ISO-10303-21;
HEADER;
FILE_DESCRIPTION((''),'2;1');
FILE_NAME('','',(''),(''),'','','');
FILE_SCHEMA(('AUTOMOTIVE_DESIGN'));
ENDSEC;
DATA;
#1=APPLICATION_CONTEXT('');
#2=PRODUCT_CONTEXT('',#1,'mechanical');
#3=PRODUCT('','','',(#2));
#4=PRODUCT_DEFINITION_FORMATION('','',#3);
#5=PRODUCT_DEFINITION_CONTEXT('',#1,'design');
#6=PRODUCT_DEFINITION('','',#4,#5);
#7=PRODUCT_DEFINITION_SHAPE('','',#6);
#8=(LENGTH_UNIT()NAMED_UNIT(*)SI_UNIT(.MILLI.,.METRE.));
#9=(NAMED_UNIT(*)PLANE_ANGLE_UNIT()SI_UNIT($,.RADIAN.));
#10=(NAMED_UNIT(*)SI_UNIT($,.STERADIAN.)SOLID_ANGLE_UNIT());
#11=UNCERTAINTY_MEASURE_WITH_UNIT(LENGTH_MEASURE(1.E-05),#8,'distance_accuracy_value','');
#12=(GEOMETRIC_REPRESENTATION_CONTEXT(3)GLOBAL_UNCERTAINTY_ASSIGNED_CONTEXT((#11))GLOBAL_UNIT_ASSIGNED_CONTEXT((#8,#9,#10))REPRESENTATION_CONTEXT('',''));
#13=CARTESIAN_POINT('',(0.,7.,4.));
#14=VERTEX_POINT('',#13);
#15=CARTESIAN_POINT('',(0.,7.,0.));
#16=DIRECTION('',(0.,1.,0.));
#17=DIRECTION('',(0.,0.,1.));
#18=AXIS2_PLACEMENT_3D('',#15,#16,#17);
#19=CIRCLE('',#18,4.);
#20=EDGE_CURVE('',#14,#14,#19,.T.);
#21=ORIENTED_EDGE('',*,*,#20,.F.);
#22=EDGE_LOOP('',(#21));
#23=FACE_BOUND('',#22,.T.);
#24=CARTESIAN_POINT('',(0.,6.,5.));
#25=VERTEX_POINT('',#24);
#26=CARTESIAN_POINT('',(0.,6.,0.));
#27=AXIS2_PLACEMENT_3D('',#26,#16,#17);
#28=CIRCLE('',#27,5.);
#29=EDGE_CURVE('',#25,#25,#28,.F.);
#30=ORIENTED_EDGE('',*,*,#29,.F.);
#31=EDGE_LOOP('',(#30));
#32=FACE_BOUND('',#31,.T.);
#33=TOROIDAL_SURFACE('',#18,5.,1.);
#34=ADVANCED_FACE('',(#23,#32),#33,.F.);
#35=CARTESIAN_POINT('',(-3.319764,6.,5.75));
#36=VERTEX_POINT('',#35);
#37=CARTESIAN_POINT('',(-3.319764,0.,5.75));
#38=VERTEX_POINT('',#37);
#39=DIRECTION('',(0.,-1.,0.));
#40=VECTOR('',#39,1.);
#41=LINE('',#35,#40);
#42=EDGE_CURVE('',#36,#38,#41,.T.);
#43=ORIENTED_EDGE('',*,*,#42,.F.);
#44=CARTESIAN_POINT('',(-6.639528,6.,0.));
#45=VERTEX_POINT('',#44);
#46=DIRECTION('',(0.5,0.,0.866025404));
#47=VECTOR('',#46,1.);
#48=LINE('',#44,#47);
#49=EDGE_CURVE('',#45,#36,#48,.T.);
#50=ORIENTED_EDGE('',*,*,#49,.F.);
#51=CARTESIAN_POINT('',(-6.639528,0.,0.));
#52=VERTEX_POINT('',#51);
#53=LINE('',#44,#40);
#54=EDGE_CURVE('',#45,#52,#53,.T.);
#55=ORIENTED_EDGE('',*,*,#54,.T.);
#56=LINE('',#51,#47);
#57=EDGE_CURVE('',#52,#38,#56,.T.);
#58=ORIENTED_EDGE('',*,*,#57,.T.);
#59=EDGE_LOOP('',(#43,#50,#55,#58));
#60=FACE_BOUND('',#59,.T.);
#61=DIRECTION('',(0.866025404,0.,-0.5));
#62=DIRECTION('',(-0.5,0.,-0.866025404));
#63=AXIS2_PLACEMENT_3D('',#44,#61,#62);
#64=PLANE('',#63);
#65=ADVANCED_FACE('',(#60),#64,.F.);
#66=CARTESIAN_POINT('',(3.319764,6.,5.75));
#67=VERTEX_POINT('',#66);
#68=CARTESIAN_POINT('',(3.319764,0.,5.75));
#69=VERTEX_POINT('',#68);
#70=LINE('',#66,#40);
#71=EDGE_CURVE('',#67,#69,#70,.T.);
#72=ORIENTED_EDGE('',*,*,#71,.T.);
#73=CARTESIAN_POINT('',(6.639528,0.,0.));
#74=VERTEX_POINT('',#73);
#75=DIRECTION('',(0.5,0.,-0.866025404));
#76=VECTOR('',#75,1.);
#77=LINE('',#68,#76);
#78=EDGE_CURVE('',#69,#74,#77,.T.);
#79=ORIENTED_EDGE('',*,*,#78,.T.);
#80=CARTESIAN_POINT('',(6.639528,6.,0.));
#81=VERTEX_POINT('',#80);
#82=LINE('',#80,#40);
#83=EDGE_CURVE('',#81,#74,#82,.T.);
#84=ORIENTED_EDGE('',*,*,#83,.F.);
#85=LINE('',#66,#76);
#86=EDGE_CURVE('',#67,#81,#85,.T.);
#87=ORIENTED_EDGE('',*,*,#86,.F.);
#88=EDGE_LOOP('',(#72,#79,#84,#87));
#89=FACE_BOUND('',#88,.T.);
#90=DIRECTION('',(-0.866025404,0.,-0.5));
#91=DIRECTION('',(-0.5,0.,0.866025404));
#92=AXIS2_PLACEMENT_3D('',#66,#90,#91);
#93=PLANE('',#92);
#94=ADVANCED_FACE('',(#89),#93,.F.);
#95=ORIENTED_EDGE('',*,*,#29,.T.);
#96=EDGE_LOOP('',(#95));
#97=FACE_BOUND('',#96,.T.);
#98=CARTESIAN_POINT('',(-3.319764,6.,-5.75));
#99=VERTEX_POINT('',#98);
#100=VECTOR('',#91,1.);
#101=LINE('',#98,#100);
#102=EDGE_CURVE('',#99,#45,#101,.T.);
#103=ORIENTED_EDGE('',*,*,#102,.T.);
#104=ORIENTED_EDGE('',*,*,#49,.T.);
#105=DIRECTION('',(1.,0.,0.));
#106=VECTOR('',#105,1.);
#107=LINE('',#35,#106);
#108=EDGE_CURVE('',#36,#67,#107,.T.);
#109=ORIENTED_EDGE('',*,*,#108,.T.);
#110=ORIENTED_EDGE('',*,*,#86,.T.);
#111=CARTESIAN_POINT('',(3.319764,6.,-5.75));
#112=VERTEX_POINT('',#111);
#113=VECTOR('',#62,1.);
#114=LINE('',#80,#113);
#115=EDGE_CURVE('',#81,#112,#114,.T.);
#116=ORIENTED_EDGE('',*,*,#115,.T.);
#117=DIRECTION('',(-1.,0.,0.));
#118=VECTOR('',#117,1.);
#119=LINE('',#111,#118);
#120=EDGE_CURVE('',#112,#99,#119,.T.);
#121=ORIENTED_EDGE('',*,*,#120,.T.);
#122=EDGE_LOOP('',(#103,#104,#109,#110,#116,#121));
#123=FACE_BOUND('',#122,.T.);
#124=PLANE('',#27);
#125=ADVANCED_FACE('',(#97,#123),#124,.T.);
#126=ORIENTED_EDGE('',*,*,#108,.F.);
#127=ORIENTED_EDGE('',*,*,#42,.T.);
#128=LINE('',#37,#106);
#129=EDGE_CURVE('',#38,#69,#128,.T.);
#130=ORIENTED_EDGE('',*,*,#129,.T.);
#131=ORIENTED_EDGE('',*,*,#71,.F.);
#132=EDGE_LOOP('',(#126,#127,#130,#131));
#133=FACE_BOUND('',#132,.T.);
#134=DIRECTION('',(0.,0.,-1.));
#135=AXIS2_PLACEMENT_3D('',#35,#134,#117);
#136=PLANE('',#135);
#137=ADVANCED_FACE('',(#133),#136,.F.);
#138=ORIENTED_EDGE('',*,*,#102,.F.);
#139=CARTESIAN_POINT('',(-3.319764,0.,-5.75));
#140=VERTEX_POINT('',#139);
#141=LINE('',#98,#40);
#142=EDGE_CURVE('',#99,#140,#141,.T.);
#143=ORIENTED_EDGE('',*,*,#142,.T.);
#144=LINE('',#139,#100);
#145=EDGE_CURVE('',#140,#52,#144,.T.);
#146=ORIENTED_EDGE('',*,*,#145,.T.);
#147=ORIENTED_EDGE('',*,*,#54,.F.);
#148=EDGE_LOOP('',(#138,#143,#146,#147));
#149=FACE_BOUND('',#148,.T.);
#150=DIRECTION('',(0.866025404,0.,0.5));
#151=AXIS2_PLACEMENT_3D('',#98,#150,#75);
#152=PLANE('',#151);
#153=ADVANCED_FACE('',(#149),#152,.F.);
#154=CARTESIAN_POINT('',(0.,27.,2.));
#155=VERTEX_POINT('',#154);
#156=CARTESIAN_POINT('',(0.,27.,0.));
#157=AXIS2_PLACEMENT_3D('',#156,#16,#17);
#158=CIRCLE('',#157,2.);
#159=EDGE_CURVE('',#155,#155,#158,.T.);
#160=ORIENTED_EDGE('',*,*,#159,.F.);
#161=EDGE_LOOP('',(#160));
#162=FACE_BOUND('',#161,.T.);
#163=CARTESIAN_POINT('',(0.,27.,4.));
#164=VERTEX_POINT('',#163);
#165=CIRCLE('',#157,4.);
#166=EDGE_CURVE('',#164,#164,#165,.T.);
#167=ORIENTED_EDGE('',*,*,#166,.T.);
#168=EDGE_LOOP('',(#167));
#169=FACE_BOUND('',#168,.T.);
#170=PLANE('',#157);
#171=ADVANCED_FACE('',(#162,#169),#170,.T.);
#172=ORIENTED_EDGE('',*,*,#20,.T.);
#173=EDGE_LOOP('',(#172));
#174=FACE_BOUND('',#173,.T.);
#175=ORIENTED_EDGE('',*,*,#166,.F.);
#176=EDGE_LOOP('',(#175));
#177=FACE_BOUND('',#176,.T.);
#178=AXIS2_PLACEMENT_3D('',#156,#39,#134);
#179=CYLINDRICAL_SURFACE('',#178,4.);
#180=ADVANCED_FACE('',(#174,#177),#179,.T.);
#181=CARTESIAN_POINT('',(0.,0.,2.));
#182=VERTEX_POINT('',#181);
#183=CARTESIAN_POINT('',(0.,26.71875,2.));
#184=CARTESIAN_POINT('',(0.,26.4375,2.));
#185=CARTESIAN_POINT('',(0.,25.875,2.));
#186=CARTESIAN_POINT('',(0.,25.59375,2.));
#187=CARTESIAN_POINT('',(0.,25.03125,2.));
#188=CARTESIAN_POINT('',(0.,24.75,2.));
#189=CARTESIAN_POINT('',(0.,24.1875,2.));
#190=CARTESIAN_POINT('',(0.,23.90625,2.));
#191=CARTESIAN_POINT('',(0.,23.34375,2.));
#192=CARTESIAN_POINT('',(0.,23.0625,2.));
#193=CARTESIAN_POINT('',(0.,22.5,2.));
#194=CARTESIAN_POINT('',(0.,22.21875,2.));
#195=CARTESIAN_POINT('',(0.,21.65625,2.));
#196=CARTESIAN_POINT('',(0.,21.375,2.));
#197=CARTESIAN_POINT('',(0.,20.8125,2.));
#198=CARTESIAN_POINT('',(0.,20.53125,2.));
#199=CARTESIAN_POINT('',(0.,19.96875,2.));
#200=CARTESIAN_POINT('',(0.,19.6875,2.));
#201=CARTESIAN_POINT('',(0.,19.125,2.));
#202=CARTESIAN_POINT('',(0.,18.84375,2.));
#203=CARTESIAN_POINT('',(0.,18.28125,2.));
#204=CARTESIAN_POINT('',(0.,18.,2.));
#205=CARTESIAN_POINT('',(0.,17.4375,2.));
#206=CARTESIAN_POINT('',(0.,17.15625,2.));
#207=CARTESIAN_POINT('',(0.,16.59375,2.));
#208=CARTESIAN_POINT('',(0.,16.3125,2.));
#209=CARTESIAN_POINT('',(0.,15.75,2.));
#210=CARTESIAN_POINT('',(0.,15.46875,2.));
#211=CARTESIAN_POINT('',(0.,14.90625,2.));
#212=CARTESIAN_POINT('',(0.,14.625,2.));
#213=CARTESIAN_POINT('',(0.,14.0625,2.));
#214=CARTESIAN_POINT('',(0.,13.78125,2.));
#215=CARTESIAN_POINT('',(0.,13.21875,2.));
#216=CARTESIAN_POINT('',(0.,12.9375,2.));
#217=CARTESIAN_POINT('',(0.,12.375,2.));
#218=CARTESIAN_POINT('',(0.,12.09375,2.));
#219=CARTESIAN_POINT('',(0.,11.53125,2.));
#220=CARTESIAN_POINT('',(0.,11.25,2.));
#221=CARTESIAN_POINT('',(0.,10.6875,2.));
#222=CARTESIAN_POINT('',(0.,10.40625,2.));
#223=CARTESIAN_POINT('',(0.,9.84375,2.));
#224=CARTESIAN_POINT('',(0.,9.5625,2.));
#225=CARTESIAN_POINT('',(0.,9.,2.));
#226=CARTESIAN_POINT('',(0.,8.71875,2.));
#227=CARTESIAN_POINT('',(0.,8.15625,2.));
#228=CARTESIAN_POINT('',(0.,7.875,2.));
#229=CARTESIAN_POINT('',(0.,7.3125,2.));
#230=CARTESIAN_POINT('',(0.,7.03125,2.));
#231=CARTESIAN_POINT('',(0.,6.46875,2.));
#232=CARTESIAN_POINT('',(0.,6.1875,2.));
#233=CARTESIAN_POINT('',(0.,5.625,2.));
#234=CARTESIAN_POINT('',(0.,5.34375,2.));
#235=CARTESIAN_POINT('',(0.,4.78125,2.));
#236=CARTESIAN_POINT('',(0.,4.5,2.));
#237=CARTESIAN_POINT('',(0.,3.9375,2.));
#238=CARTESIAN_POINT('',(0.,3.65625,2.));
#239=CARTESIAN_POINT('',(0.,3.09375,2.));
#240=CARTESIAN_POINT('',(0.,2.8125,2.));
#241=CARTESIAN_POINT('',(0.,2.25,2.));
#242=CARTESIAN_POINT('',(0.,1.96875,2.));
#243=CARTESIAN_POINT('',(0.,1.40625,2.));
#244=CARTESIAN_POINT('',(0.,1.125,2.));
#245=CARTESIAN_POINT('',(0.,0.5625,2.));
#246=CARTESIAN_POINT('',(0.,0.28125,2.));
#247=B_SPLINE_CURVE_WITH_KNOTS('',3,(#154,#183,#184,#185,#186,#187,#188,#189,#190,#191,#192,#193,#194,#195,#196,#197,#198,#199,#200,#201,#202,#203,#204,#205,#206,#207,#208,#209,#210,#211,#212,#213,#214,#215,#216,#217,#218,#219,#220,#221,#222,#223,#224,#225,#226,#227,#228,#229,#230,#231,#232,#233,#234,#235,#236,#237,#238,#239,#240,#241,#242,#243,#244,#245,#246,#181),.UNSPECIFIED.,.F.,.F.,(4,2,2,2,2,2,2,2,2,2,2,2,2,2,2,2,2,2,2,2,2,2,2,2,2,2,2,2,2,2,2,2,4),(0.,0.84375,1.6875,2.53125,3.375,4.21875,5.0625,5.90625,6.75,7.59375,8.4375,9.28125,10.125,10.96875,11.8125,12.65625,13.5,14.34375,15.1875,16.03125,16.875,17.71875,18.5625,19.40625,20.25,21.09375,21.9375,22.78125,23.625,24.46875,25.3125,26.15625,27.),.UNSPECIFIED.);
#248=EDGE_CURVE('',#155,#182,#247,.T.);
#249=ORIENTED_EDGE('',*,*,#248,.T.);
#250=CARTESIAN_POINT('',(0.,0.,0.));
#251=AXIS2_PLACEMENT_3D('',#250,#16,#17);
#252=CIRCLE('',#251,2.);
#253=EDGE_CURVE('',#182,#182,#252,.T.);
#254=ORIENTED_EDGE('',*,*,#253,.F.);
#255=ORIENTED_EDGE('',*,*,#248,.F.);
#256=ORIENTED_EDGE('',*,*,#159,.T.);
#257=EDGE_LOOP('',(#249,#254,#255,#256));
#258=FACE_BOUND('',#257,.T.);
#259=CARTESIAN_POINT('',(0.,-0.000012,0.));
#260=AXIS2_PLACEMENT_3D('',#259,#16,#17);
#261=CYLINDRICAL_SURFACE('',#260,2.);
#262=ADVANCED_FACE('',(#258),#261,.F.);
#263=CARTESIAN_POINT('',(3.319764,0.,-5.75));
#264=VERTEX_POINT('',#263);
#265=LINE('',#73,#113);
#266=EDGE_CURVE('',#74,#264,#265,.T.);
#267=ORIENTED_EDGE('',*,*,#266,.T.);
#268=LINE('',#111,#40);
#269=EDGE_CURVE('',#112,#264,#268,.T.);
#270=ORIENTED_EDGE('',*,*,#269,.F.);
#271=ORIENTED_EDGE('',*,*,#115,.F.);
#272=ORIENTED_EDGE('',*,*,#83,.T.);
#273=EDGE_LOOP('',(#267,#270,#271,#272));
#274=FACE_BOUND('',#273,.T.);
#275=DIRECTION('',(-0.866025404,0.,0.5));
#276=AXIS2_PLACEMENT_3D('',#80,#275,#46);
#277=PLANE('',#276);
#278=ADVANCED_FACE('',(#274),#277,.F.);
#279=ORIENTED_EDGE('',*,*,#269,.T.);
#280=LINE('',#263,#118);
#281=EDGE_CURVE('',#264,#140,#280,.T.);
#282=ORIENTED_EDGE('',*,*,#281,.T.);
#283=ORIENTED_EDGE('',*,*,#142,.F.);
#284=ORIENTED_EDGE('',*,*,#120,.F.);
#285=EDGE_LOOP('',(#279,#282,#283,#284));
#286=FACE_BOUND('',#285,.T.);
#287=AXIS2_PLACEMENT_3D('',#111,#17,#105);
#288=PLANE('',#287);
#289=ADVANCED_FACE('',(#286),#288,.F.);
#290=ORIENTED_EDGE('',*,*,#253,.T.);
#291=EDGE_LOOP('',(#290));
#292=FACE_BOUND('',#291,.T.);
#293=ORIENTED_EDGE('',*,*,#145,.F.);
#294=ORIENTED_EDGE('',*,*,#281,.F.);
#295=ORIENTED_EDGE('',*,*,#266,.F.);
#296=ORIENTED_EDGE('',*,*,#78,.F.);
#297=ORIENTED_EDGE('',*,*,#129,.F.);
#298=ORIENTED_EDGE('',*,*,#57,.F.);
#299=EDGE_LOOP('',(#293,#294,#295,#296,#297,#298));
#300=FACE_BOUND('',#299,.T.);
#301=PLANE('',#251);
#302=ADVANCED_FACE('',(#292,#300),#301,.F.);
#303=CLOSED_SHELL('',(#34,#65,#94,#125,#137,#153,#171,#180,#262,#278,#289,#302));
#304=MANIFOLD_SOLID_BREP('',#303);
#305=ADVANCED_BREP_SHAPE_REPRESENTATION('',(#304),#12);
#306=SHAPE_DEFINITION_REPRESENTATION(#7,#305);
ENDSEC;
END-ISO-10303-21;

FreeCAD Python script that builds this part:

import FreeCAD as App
import Part
import Sketcher
Q = App.Units.Quantity


def edges_at(feature, points):
    """Names of the edges that pass closest to the given points."""
    edges = feature.Shape.Edges
    near = lambda p: min(range(len(edges)), key=lambda i: edges[i].distToShape(Part.Vertex(*p))[0])
    return sorted({f"Edge{near(p) + 1}" for p in points})


def add_polygon(sketch, points):
    """Adds a closed chain of lines whose ends are joined by coincident constraints."""
    first, n = sketch.GeometryCount, len(points)
    for a, b in zip(points, points[1:] + points[:1]):
        sketch.addGeometry(Part.LineSegment(App.Vector(*a, 0), App.Vector(*b, 0)), False)
    for i in range(n):
        sketch.addConstraint(Sketcher.Constraint("Coincident", first + i, 2, first + (i + 1) % n, 1))

doc = App.newDocument("Part")
params = doc.addObject("Spreadsheet::Sheet", "Params")
for row, (alias, value) in enumerate([
    ("sketch1_diameter", "8 mm"),
    ("pad1_length", "27 mm"),
    ("sketch2_diameter", "8 mm"),
    ("pad2_length", "6 mm"),
    ("fillet_radius", "1 mm"),
    ("sketch3_diameter", "4 mm"),
], start=1):
    params.set(f"A{row}", alias)
    params.set(f"B{row}", "=" + value)
    params.setAlias(f"B{row}", alias)

body = doc.addObject("PartDesign::Body", "Body")

# Sketch on XZ plane
sketch1 = body.newObject("Sketcher::SketchObject", "Sketch")
sketch1.AttachmentSupport = (doc.getObject("XZ_Plane"), [""])
sketch1.MapMode = "FlatFace"
sketch1.addGeometry(Part.Circle(App.Vector(0, 0, 0), App.Vector(0, 0, 1), 4), False)
sketch1.addConstraint([
    Sketcher.Constraint("Coincident", 0, 3, -1, 1),
    Sketcher.Constraint("Diameter", 0, 8.0),
])
sketch1.setExpression("Constraints[1]", "Params.sketch1_diameter")
pad1 = body.newObject("PartDesign::Pad", "Pad")
pad1.Profile = sketch1
pad1.setExpression("Length", "Params.pad1_length")
pad1.Reversed = True

# Sketch on XZ plane
sketch2 = body.newObject("Sketcher::SketchObject", "Sketch001")
sketch2.AttachmentSupport = (doc.getObject("XZ_Plane"), [""])
sketch2.MapMode = "FlatFace"
add_polygon(sketch2, [(6.639528, 0), (3.319764, -5.75), (-3.319764, -5.75), (-6.639528, 0), (-3.319764, 5.75), (3.319764, 5.75)])  # lines 0-5
sketch2.addGeometry(Part.Circle(App.Vector(0, 0, 0), App.Vector(0, 0, 1), 4), False)  # 6
sketch2.addConstraint([
    Sketcher.Constraint("Horizontal", 1),
    Sketcher.Constraint("Horizontal", 4),
    Sketcher.Constraint("Coincident", 6, 3, -1, 1),
    Sketcher.Constraint("Symmetric", 0, 2, 3, 2, -1, 1),
    Sketcher.Constraint("Symmetric", 2, 2, 5, 2, -1, 1),
    Sketcher.Constraint("PointOnObject", 2, 2, -1),
    Sketcher.Constraint("Parallel", 2, 5),
    Sketcher.Constraint("Vertical", 1, 2, 3, 2),
    Sketcher.Constraint("Diameter", 6, 8.0),
    Sketcher.Constraint("Angle", 0, Q("-120 deg")),
    Sketcher.Constraint("DistanceY", 1, 2, 3, 2, 11.5),
    Sketcher.Constraint("DistanceX", 1, 2, 1, 1, 6.639528),
])
sketch2.setExpression("Constraints[14]", "Params.sketch2_diameter")
pad2 = body.newObject("PartDesign::Pad", "Pad001")
pad2.Profile = sketch2
pad2.setExpression("Length", "Params.pad2_length")
pad2.Reversed = True
doc.recompute()

fillet = body.newObject("PartDesign::Fillet", "Fillet")
fillet.Base = (pad2, edges_at(pad2, [(0, 6, -4)]))
fillet.setExpression("Radius", "Params.fillet_radius")

# Sketch on XZ plane
sketch3 = body.newObject("Sketcher::SketchObject", "Sketch002")
sketch3.AttachmentSupport = (doc.getObject("XZ_Plane"), [""])
sketch3.MapMode = "FlatFace"
sketch3.addGeometry(Part.Circle(App.Vector(0, 0, 0), App.Vector(0, 0, 1), 2), False)
sketch3.addConstraint([
    Sketcher.Constraint("Coincident", 0, 3, -1, 1),
    Sketcher.Constraint("Diameter", 0, 4.0),
])
sketch3.setExpression("Constraints[1]", "Params.sketch3_diameter")
pocket1 = body.newObject("PartDesign::Pocket", "Pocket")
pocket1.Profile = sketch3
pocket1.Type = "ThroughAll"
pocket1.Midplane = True

doc.recompute()
